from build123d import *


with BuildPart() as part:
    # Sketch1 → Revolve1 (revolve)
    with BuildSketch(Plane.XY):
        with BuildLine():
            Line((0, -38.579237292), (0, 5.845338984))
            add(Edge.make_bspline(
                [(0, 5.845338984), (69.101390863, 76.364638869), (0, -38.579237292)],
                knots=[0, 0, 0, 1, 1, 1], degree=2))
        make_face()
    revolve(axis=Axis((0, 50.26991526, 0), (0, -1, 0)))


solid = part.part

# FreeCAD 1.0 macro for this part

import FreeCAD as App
import Part
import Sketcher

doc = App.newDocument("Part")
body = doc.addObject("PartDesign::Body", "Body")

# Sketch on XY plane
sketch1 = body.newObject("Sketcher::SketchObject", "Sketch")
sketch1.AttachmentSupport = (doc.getObject("XY_Plane"), [""])
sketch1.MapMode = "FlatFace"
sketch1.addGeometry(Part.LineSegment(App.Vector(0, 5.845339, 0), App.Vector(0, -38.579237, 0)), False)
sketch1.addGeometry(Part.BSplineCurve([App.Vector(0, 5.845339, 0), App.Vector(69.101391, 76.364639, 0), App.Vector(0, -38.579237, 0)], [3, 3], [0, 1], False, 2, [1, 1, 1], False), False)
sketch1.addConstraint(Sketcher.Constraint("Block", 1))
sketch1.addConstraint(Sketcher.Constraint("Coincident", 0, 1, 1, 1))
sketch1.addConstraint(Sketcher.Constraint("Coincident", 1, 2, 0, 2))
revolution = body.newObject("PartDesign::Revolution", "Revolution")
revolution.Profile = sketch1
revolution.ReferenceAxis = (sketch1, ["V_Axis"])
revolution.Angle = 360

doc.recompute()
